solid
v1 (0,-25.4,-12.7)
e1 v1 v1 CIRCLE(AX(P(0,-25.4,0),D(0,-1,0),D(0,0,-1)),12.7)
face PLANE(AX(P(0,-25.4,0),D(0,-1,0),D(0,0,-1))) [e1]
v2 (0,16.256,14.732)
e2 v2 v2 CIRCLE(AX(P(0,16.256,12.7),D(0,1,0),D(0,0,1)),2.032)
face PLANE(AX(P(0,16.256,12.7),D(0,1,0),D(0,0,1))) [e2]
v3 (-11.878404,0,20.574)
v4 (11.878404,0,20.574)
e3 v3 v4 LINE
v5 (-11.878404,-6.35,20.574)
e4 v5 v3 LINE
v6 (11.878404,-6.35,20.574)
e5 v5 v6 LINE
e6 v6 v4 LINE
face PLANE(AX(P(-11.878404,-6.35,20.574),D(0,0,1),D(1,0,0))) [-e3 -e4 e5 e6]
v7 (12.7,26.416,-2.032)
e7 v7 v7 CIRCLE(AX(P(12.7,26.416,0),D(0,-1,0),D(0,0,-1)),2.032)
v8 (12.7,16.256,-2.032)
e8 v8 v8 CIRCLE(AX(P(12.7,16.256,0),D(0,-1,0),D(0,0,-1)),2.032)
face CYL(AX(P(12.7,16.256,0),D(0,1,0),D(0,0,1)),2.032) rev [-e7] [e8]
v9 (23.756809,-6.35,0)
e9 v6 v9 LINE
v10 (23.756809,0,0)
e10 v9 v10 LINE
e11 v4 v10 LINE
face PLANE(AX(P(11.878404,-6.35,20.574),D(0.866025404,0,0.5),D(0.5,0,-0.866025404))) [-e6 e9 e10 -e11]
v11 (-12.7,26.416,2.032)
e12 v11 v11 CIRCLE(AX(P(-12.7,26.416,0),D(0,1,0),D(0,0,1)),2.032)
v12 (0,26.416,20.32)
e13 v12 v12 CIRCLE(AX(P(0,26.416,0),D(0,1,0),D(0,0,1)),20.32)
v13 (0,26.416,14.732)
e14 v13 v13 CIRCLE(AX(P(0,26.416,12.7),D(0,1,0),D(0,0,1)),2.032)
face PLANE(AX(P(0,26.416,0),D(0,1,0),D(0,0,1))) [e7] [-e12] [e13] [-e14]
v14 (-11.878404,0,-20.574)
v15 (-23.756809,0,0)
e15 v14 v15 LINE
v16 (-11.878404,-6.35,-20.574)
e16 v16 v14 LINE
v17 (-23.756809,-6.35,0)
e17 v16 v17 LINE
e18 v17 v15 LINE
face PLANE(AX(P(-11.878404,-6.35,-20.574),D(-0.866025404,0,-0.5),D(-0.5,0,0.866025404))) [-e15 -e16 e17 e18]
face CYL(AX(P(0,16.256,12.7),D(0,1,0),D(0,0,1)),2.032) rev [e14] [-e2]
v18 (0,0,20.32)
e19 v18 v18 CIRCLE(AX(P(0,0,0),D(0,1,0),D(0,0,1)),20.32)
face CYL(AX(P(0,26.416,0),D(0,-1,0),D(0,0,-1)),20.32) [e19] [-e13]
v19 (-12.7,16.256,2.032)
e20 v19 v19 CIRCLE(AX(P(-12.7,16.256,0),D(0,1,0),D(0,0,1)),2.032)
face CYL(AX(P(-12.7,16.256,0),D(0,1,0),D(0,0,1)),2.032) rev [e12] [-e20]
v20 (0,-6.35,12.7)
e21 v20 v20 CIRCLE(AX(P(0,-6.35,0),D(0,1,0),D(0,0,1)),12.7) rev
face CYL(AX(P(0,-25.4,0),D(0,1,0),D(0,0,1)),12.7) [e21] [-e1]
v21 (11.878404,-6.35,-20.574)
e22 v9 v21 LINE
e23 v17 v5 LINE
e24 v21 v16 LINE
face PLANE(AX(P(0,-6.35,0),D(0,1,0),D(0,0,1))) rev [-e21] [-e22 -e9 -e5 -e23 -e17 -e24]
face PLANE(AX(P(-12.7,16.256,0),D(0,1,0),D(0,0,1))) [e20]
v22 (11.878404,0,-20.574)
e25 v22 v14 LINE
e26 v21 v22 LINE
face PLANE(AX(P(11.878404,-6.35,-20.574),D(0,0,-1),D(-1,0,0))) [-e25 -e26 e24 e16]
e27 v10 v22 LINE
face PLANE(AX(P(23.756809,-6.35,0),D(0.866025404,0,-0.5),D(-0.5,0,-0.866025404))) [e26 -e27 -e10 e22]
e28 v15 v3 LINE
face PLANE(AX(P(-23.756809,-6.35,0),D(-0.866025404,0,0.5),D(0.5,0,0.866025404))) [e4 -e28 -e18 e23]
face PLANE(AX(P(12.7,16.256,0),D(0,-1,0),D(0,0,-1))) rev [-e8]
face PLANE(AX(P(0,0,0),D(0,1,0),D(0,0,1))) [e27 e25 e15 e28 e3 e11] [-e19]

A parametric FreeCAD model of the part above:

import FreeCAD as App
import Part
import Sketcher

V = App.Vector
Q = App.Units.Quantity


def add_polygon(sketch, points):
    """Adds a closed chain of lines whose ends are joined by coincident constraints."""
    first, n = sketch.GeometryCount, len(points)
    for a, b in zip(points, points[1:] + points[:1]):
        sketch.addGeometry(Part.LineSegment(App.Vector(*a, 0), App.Vector(*b, 0)), False)
    for i in range(n):
        sketch.addConstraint(Sketcher.Constraint("Coincident", first + i, 2, first + (i + 1) % n, 1))

doc = App.newDocument("Part")
params = doc.addObject("Spreadsheet::Sheet", "Params")
for row, (alias, value) in enumerate([
    ("sketch1_diameter", "1.6 in"),
    ("pad1_length", "1.04 in"),
    ("pad2_length", "0.25 in"),
    ("sketch3_diameter", "1 in"),
    ("pad3_length", "0.75 in"),
    ("sketch4_diameter", "0.16 in"),
    ("pocket1_length", "0.4 in"),
], start=1):
    params.set(f"A{row}", alias)
    params.set(f"B{row}", "=" + value)
    params.setAlias(f"B{row}", alias)

body = doc.addObject("PartDesign::Body", "Body")

sketch1 = body.newObject("Sketcher::SketchObject", "Sketch")
sketch1.AttachmentSupport = (doc.getObject("XZ_Plane"), [""])
sketch1.MapMode = "FlatFace"
sketch1.addGeometry(Part.Circle(V(0, 0, 0), V(0, 0, 1), 20), False)
sketch1.addConstraint(Sketcher.Constraint("Coincident", 0, 3, -1, 1))
sketch1.addConstraint(Sketcher.Constraint("Diameter", 0, Q("1.6 in")))
sketch1.setExpression("Constraints[1]", "Params.sketch1_diameter")
pad1 = body.newObject("PartDesign::Pad", "Pad")
pad1.Profile = sketch1
pad1.setExpression("Length", "Params.pad1_length")
pad1.Reversed = True

sketch2 = body.newObject("Sketcher::SketchObject", "Sketch001")
sketch2.AttachmentSupport = (doc.getObject("XZ_Plane"), [""])
sketch2.MapMode = "FlatFace"
add_polygon(sketch2, [(12, 21), (-12, 21), (-24, 0), (-12, -21), (12, -21), (24, 0)])
sketch2.addConstraint(Sketcher.Constraint("Horizontal", 0))
sketch2.addConstraint(Sketcher.Constraint("Horizontal", 3))
sketch2.addConstraint(Sketcher.Constraint("Symmetric", 0, 2, 3, 2, -1, 1))
sketch2.addConstraint(Sketcher.Constraint("Symmetric", 1, 2, 4, 2, -1, 1))
sketch2.addConstraint(Sketcher.Constraint("PointOnObject", 1, 2, -1))
sketch2.addConstraint(Sketcher.Constraint("Parallel", 2, 5))
sketch2.addConstraint(Sketcher.Constraint("Vertical", 0, 2, 2, 2))
sketch2.addConstraint(Sketcher.Constraint("Angle", 1, Q("-120 deg")))
sketch2.addConstraint(Sketcher.Constraint("DistanceY", -1, 1, 0, 2, Q("0.81 in")))
sketch2.addConstraint(Sketcher.Constraint("DistanceX", 0, 2, 0, 1, 23.756809))
pad2 = body.newObject("PartDesign::Pad", "Pad001")
pad2.Profile = sketch2
pad2.setExpression("Length", "Params.pad2_length")

sketch3 = body.newObject("Sketcher::SketchObject", "Sketch002")
sketch3.AttachmentSupport = (doc.getObject("XZ_Plane"), [""])
sketch3.MapMode = "FlatFace"
sketch3.AttachmentOffset = App.Placement(V(0, 0, 0.25 * 25.4), App.Rotation())
sketch3.addGeometry(Part.Circle(V(0, 0, 0), V(0, 0, 1), 13), False)
sketch3.addConstraint(Sketcher.Constraint("Coincident", 0, 3, -1, 1))
sketch3.addConstraint(Sketcher.Constraint("Diameter", 0, Q("1 in")))
sketch3.setExpression("Constraints[1]", "Params.sketch3_diameter")
pad3 = body.newObject("PartDesign::Pad", "Pad002")
pad3.Profile = sketch3
pad3.setExpression("Length", "Params.pad3_length")

sketch4 = body.newObject("Sketcher::SketchObject", "Sketch003")
sketch4.AttachmentSupport = (doc.getObject("XZ_Plane"), [""])
sketch4.MapMode = "FlatFace"
sketch4.AttachmentOffset = App.Placement(V(0, 0, -1.04 * 25.4), App.Rotation())
sketch4.addGeometry(Part.Circle(V(0, 12.7, 0), V(0, 0, 1), 2), False)
sketch4.addGeometry(Part.Circle(V(-12.7, 0, 0), V(0, 0, 1), 2), False)
sketch4.addGeometry(Part.Circle(V(12.7, 0, 0), V(0, 0, 1), 2), False)
sketch4.addConstraint(Sketcher.Constraint("Equal", 0, 1))
sketch4.addConstraint(Sketcher.Constraint("Equal", 1, 2))
sketch4.addConstraint(Sketcher.Constraint("Symmetric", 1, 3, 2, 3, -1, 1))
sketch4.addConstraint(Sketcher.Constraint("PointOnObject", 0, 3, -2))
sketch4.addConstraint(Sketcher.Constraint("PointOnObject", 1, 3, -1))
sketch4.addConstraint(Sketcher.Constraint("Diameter", 0, Q("0.16 in")))
sketch4.addConstraint(Sketcher.Constraint("DistanceX", 1, 3, 2, 3, Q("1 in")))
sketch4.addConstraint(Sketcher.Constraint("DistanceY", -1, 1, 0, 3, Q("0.5 in")))
sketch4.setExpression("Constraints[5]", "Params.sketch4_diameter")
pocket1 = body.newObject("PartDesign::Pocket", "Pocket")
pocket1.Profile = sketch4
pocket1.setExpression("Length", "Params.pocket1_length")
pocket1.Reversed = True

doc.recompute()
